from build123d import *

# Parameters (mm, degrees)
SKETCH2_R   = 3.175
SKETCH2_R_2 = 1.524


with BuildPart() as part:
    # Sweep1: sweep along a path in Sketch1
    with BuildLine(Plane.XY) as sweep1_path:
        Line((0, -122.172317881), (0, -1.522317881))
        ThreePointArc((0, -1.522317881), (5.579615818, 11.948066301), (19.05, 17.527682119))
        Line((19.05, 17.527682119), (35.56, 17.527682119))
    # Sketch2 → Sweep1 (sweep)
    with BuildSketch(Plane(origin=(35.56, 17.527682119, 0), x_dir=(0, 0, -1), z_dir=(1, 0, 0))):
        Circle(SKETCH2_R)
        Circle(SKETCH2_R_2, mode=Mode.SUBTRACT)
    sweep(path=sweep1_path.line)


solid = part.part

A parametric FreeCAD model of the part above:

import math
import FreeCAD as App
import Part
import Sketcher
from FreeCAD import Vector
Q = App.Units.Quantity

doc = App.newDocument("Part")
body = doc.addObject("PartDesign::Body", "Body")

# Sketch on YZ plane
sketch1 = body.newObject("Sketcher::SketchObject", "Sketch")
sketch1.AttachmentSupport = (doc.getObject("YZ_Plane"), [""])
sketch1.MapMode = "FlatFace"
sketch1.AttachmentOffset = App.Placement(Vector(0, 0, 1.4 * 25.4), App.Rotation())
sketch1.addGeometry([
    Part.Circle(Vector(17.527682, 0, 0), Vector(0, 0, 1), 3.175),
    Part.Circle(Vector(17.527682, 0, 0), Vector(0, 0, 1), 1.524),
], False)
sketch1.addConstraint([
    Sketcher.Constraint("Coincident", 1, 3, 0, 3),
    Sketcher.Constraint("PointOnObject", 0, 3, -1),
    Sketcher.Constraint("Diameter", 0, Q("0.25 in")),
    Sketcher.Constraint("Diameter", 1, Q("0.12 in")),
    Sketcher.Constraint("DistanceX", -1, 1, 0, 3, 17.527682),
])

# Sketch on XY plane
sketch2 = body.newObject("Sketcher::SketchObject", "Sketch001")
sketch2.AttachmentSupport = (doc.getObject("XY_Plane"), [""])
sketch2.MapMode = "FlatFace"
sketch2.addGeometry([
    Part.LineSegment(Vector(0, -122.172318, 0), Vector(0, -1.522318, 0)),
    Part.ArcOfCircle(Part.Circle(Vector(19.05, -1.522318, 0), Vector(0, 0, 1), 19.05), math.radians(90), math.radians(180)),
    Part.LineSegment(Vector(19.05, 17.527682, 0), Vector(35.56, 17.527682, 0)),
], False)
sketch2.addConstraint([
    Sketcher.Constraint("Tangent", 0, 2, 1, 2),
    Sketcher.Constraint("Tangent", 1, 1, 2, 1),
    Sketcher.Constraint("Vertical", 0),
    Sketcher.Constraint("Horizontal", 2),
    Sketcher.Constraint("PointOnObject", 0, 1, -2),
    Sketcher.Constraint("Radius", 1, Q("0.75 in")),
    Sketcher.Constraint("DistanceX", 2, 1, 2, 2, Q("0.65 in")),
    Sketcher.Constraint("DistanceY", 0, 1, 0, 2, Q("4.75 in")),
    Sketcher.Constraint("DistanceY", 1, 3, -1, 1, 1.522318),
])
doc.recompute()

additivepipe = body.newObject("PartDesign::AdditivePipe", "AdditivePipe")
additivepipe.Profile = sketch1
additivepipe.Spine = (sketch2, ["Edge1", "Edge2", "Edge3"])

doc.recompute()
